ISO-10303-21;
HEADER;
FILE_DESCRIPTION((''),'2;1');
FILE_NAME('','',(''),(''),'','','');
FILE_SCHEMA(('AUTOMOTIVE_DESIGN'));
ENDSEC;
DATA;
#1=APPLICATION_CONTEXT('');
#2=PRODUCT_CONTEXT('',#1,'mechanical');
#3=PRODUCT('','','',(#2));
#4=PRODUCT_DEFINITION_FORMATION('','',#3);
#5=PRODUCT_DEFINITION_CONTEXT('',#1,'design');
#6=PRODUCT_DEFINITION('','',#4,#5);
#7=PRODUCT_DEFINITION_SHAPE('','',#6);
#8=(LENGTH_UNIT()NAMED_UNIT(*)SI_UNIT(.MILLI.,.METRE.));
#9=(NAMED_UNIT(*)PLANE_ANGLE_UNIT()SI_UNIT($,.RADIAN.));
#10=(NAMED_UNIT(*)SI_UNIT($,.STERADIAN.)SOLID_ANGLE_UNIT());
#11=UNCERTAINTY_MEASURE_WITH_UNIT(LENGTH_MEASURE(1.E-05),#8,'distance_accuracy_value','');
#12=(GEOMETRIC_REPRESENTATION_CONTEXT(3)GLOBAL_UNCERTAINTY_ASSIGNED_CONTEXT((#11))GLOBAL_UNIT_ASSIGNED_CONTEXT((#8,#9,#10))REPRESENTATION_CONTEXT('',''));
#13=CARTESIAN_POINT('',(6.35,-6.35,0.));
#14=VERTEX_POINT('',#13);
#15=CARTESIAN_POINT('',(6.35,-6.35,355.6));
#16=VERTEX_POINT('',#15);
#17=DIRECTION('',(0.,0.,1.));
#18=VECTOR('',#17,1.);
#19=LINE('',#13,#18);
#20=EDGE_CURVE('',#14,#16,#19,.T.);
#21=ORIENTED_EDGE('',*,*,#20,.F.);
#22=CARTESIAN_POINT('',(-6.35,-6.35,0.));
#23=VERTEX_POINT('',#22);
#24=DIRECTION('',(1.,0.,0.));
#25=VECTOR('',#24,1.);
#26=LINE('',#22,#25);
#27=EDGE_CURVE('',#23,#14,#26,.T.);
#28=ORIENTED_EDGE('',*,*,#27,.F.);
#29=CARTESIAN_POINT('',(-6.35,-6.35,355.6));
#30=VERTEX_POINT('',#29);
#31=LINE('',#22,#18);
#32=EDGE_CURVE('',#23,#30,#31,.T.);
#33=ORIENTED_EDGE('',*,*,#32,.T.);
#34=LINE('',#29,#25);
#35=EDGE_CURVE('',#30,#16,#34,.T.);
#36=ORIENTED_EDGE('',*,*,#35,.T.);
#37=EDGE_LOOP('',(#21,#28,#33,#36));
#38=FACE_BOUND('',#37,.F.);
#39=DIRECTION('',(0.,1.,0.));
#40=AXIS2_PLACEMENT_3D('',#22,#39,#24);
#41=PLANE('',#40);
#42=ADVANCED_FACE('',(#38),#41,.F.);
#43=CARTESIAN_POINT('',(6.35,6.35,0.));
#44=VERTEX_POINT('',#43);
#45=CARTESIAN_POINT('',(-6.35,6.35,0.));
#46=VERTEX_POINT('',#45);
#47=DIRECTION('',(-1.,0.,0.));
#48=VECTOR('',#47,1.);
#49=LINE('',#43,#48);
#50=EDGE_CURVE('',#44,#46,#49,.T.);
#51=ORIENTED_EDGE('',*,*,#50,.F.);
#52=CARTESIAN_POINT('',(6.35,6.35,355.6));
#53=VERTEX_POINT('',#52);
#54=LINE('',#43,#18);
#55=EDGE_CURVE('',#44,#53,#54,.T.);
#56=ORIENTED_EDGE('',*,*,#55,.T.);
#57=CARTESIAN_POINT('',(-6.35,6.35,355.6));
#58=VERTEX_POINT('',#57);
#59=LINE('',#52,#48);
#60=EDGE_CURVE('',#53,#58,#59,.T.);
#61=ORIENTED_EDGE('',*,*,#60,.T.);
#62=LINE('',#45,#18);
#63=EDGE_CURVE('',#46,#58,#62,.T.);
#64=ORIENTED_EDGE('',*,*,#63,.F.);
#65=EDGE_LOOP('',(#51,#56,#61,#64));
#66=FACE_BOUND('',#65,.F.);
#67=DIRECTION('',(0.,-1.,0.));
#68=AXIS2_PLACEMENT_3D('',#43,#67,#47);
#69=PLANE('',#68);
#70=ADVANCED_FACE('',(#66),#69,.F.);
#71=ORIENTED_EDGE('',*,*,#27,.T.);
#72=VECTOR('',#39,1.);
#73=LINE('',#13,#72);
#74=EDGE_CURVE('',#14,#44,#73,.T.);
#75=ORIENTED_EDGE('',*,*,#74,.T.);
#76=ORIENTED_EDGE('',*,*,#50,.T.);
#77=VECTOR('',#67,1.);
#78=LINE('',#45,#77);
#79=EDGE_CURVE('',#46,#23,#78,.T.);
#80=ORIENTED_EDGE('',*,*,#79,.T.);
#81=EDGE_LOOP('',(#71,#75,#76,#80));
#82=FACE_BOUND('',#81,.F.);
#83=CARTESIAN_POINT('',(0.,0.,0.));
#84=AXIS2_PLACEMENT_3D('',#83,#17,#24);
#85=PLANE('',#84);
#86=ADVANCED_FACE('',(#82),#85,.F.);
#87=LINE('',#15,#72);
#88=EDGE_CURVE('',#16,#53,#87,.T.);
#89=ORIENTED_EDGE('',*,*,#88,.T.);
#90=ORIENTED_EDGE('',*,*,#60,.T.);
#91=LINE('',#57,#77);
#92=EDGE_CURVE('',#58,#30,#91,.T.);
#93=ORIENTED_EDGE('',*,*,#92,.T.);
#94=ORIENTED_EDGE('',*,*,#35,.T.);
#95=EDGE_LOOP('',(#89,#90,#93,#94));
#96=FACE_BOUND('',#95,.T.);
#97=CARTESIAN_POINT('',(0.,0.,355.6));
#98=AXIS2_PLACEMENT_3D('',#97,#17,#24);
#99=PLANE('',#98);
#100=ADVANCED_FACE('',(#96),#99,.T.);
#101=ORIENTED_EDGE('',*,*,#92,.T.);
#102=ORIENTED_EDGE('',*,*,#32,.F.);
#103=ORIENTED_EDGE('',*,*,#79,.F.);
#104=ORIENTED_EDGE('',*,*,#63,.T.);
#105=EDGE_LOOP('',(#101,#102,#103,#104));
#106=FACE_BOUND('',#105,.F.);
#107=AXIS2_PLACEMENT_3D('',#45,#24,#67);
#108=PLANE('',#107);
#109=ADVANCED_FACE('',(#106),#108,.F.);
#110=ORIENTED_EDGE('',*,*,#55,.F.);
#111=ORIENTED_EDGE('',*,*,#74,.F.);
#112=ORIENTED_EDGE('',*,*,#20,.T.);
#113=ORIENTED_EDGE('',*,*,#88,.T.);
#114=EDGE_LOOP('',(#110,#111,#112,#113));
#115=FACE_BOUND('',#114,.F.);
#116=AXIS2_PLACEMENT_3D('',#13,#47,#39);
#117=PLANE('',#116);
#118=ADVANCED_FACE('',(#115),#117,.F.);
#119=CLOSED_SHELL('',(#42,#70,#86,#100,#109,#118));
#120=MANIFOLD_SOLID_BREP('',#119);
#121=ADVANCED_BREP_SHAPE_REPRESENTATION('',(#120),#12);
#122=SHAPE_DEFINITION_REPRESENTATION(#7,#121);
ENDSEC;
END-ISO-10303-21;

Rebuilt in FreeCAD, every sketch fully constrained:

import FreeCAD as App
import Part
import Sketcher

V = App.Vector
Q = App.Units.Quantity

doc = App.newDocument("Part")
body = doc.addObject("PartDesign::Body", "Body")

# Sketch on XY plane
sketch1 = doc.addObject("Sketcher::SketchObject", "Sketch")
body.addObject(sketch1)
sketch1.AttachmentSupport = (doc.XY_Plane, [""])
sketch1.MapMode = "FlatFace"
sketch1.addGeometry(Part.LineSegment(V(-6.35, 6.35, 0), V(-6.35, -6.35, 0)), False)
sketch1.addGeometry(Part.LineSegment(V(-6.35, -6.35, 0), V(6.35, -6.35, 0)), False)
sketch1.addGeometry(Part.LineSegment(V(6.35, -6.35, 0), V(6.35, 6.35, 0)), False)
sketch1.addGeometry(Part.LineSegment(V(6.35, 6.35, 0), V(-6.35, 6.35, 0)), False)
sketch1.addConstraint(Sketcher.Constraint("Coincident", 0, 2, 1, 1))
sketch1.addConstraint(Sketcher.Constraint("Coincident", 1, 2, 2, 1))
sketch1.addConstraint(Sketcher.Constraint("Coincident", 2, 2, 3, 1))
sketch1.addConstraint(Sketcher.Constraint("Coincident", 3, 2, 0, 1))
sketch1.addConstraint(Sketcher.Constraint("Vertical", 0))
sketch1.addConstraint(Sketcher.Constraint("Horizontal", 1))
sketch1.addConstraint(Sketcher.Constraint("Vertical", 2))
sketch1.addConstraint(Sketcher.Constraint("Horizontal", 3))
sketch1.addConstraint(Sketcher.Constraint("Symmetric", 0, 2, 2, 2, -1, 1))
sketch1.addConstraint(Sketcher.Constraint("Equal", 3, 0))
sketch1.addConstraint(Sketcher.Constraint("DistanceX", 0, 2, -1, 1, Q("0.25 in")))
pad1 = doc.addObject("PartDesign::Pad", "Pad")
body.addObject(pad1)
pad1.Profile = sketch1
pad1.Length = Q("14 in")

doc.recompute()
